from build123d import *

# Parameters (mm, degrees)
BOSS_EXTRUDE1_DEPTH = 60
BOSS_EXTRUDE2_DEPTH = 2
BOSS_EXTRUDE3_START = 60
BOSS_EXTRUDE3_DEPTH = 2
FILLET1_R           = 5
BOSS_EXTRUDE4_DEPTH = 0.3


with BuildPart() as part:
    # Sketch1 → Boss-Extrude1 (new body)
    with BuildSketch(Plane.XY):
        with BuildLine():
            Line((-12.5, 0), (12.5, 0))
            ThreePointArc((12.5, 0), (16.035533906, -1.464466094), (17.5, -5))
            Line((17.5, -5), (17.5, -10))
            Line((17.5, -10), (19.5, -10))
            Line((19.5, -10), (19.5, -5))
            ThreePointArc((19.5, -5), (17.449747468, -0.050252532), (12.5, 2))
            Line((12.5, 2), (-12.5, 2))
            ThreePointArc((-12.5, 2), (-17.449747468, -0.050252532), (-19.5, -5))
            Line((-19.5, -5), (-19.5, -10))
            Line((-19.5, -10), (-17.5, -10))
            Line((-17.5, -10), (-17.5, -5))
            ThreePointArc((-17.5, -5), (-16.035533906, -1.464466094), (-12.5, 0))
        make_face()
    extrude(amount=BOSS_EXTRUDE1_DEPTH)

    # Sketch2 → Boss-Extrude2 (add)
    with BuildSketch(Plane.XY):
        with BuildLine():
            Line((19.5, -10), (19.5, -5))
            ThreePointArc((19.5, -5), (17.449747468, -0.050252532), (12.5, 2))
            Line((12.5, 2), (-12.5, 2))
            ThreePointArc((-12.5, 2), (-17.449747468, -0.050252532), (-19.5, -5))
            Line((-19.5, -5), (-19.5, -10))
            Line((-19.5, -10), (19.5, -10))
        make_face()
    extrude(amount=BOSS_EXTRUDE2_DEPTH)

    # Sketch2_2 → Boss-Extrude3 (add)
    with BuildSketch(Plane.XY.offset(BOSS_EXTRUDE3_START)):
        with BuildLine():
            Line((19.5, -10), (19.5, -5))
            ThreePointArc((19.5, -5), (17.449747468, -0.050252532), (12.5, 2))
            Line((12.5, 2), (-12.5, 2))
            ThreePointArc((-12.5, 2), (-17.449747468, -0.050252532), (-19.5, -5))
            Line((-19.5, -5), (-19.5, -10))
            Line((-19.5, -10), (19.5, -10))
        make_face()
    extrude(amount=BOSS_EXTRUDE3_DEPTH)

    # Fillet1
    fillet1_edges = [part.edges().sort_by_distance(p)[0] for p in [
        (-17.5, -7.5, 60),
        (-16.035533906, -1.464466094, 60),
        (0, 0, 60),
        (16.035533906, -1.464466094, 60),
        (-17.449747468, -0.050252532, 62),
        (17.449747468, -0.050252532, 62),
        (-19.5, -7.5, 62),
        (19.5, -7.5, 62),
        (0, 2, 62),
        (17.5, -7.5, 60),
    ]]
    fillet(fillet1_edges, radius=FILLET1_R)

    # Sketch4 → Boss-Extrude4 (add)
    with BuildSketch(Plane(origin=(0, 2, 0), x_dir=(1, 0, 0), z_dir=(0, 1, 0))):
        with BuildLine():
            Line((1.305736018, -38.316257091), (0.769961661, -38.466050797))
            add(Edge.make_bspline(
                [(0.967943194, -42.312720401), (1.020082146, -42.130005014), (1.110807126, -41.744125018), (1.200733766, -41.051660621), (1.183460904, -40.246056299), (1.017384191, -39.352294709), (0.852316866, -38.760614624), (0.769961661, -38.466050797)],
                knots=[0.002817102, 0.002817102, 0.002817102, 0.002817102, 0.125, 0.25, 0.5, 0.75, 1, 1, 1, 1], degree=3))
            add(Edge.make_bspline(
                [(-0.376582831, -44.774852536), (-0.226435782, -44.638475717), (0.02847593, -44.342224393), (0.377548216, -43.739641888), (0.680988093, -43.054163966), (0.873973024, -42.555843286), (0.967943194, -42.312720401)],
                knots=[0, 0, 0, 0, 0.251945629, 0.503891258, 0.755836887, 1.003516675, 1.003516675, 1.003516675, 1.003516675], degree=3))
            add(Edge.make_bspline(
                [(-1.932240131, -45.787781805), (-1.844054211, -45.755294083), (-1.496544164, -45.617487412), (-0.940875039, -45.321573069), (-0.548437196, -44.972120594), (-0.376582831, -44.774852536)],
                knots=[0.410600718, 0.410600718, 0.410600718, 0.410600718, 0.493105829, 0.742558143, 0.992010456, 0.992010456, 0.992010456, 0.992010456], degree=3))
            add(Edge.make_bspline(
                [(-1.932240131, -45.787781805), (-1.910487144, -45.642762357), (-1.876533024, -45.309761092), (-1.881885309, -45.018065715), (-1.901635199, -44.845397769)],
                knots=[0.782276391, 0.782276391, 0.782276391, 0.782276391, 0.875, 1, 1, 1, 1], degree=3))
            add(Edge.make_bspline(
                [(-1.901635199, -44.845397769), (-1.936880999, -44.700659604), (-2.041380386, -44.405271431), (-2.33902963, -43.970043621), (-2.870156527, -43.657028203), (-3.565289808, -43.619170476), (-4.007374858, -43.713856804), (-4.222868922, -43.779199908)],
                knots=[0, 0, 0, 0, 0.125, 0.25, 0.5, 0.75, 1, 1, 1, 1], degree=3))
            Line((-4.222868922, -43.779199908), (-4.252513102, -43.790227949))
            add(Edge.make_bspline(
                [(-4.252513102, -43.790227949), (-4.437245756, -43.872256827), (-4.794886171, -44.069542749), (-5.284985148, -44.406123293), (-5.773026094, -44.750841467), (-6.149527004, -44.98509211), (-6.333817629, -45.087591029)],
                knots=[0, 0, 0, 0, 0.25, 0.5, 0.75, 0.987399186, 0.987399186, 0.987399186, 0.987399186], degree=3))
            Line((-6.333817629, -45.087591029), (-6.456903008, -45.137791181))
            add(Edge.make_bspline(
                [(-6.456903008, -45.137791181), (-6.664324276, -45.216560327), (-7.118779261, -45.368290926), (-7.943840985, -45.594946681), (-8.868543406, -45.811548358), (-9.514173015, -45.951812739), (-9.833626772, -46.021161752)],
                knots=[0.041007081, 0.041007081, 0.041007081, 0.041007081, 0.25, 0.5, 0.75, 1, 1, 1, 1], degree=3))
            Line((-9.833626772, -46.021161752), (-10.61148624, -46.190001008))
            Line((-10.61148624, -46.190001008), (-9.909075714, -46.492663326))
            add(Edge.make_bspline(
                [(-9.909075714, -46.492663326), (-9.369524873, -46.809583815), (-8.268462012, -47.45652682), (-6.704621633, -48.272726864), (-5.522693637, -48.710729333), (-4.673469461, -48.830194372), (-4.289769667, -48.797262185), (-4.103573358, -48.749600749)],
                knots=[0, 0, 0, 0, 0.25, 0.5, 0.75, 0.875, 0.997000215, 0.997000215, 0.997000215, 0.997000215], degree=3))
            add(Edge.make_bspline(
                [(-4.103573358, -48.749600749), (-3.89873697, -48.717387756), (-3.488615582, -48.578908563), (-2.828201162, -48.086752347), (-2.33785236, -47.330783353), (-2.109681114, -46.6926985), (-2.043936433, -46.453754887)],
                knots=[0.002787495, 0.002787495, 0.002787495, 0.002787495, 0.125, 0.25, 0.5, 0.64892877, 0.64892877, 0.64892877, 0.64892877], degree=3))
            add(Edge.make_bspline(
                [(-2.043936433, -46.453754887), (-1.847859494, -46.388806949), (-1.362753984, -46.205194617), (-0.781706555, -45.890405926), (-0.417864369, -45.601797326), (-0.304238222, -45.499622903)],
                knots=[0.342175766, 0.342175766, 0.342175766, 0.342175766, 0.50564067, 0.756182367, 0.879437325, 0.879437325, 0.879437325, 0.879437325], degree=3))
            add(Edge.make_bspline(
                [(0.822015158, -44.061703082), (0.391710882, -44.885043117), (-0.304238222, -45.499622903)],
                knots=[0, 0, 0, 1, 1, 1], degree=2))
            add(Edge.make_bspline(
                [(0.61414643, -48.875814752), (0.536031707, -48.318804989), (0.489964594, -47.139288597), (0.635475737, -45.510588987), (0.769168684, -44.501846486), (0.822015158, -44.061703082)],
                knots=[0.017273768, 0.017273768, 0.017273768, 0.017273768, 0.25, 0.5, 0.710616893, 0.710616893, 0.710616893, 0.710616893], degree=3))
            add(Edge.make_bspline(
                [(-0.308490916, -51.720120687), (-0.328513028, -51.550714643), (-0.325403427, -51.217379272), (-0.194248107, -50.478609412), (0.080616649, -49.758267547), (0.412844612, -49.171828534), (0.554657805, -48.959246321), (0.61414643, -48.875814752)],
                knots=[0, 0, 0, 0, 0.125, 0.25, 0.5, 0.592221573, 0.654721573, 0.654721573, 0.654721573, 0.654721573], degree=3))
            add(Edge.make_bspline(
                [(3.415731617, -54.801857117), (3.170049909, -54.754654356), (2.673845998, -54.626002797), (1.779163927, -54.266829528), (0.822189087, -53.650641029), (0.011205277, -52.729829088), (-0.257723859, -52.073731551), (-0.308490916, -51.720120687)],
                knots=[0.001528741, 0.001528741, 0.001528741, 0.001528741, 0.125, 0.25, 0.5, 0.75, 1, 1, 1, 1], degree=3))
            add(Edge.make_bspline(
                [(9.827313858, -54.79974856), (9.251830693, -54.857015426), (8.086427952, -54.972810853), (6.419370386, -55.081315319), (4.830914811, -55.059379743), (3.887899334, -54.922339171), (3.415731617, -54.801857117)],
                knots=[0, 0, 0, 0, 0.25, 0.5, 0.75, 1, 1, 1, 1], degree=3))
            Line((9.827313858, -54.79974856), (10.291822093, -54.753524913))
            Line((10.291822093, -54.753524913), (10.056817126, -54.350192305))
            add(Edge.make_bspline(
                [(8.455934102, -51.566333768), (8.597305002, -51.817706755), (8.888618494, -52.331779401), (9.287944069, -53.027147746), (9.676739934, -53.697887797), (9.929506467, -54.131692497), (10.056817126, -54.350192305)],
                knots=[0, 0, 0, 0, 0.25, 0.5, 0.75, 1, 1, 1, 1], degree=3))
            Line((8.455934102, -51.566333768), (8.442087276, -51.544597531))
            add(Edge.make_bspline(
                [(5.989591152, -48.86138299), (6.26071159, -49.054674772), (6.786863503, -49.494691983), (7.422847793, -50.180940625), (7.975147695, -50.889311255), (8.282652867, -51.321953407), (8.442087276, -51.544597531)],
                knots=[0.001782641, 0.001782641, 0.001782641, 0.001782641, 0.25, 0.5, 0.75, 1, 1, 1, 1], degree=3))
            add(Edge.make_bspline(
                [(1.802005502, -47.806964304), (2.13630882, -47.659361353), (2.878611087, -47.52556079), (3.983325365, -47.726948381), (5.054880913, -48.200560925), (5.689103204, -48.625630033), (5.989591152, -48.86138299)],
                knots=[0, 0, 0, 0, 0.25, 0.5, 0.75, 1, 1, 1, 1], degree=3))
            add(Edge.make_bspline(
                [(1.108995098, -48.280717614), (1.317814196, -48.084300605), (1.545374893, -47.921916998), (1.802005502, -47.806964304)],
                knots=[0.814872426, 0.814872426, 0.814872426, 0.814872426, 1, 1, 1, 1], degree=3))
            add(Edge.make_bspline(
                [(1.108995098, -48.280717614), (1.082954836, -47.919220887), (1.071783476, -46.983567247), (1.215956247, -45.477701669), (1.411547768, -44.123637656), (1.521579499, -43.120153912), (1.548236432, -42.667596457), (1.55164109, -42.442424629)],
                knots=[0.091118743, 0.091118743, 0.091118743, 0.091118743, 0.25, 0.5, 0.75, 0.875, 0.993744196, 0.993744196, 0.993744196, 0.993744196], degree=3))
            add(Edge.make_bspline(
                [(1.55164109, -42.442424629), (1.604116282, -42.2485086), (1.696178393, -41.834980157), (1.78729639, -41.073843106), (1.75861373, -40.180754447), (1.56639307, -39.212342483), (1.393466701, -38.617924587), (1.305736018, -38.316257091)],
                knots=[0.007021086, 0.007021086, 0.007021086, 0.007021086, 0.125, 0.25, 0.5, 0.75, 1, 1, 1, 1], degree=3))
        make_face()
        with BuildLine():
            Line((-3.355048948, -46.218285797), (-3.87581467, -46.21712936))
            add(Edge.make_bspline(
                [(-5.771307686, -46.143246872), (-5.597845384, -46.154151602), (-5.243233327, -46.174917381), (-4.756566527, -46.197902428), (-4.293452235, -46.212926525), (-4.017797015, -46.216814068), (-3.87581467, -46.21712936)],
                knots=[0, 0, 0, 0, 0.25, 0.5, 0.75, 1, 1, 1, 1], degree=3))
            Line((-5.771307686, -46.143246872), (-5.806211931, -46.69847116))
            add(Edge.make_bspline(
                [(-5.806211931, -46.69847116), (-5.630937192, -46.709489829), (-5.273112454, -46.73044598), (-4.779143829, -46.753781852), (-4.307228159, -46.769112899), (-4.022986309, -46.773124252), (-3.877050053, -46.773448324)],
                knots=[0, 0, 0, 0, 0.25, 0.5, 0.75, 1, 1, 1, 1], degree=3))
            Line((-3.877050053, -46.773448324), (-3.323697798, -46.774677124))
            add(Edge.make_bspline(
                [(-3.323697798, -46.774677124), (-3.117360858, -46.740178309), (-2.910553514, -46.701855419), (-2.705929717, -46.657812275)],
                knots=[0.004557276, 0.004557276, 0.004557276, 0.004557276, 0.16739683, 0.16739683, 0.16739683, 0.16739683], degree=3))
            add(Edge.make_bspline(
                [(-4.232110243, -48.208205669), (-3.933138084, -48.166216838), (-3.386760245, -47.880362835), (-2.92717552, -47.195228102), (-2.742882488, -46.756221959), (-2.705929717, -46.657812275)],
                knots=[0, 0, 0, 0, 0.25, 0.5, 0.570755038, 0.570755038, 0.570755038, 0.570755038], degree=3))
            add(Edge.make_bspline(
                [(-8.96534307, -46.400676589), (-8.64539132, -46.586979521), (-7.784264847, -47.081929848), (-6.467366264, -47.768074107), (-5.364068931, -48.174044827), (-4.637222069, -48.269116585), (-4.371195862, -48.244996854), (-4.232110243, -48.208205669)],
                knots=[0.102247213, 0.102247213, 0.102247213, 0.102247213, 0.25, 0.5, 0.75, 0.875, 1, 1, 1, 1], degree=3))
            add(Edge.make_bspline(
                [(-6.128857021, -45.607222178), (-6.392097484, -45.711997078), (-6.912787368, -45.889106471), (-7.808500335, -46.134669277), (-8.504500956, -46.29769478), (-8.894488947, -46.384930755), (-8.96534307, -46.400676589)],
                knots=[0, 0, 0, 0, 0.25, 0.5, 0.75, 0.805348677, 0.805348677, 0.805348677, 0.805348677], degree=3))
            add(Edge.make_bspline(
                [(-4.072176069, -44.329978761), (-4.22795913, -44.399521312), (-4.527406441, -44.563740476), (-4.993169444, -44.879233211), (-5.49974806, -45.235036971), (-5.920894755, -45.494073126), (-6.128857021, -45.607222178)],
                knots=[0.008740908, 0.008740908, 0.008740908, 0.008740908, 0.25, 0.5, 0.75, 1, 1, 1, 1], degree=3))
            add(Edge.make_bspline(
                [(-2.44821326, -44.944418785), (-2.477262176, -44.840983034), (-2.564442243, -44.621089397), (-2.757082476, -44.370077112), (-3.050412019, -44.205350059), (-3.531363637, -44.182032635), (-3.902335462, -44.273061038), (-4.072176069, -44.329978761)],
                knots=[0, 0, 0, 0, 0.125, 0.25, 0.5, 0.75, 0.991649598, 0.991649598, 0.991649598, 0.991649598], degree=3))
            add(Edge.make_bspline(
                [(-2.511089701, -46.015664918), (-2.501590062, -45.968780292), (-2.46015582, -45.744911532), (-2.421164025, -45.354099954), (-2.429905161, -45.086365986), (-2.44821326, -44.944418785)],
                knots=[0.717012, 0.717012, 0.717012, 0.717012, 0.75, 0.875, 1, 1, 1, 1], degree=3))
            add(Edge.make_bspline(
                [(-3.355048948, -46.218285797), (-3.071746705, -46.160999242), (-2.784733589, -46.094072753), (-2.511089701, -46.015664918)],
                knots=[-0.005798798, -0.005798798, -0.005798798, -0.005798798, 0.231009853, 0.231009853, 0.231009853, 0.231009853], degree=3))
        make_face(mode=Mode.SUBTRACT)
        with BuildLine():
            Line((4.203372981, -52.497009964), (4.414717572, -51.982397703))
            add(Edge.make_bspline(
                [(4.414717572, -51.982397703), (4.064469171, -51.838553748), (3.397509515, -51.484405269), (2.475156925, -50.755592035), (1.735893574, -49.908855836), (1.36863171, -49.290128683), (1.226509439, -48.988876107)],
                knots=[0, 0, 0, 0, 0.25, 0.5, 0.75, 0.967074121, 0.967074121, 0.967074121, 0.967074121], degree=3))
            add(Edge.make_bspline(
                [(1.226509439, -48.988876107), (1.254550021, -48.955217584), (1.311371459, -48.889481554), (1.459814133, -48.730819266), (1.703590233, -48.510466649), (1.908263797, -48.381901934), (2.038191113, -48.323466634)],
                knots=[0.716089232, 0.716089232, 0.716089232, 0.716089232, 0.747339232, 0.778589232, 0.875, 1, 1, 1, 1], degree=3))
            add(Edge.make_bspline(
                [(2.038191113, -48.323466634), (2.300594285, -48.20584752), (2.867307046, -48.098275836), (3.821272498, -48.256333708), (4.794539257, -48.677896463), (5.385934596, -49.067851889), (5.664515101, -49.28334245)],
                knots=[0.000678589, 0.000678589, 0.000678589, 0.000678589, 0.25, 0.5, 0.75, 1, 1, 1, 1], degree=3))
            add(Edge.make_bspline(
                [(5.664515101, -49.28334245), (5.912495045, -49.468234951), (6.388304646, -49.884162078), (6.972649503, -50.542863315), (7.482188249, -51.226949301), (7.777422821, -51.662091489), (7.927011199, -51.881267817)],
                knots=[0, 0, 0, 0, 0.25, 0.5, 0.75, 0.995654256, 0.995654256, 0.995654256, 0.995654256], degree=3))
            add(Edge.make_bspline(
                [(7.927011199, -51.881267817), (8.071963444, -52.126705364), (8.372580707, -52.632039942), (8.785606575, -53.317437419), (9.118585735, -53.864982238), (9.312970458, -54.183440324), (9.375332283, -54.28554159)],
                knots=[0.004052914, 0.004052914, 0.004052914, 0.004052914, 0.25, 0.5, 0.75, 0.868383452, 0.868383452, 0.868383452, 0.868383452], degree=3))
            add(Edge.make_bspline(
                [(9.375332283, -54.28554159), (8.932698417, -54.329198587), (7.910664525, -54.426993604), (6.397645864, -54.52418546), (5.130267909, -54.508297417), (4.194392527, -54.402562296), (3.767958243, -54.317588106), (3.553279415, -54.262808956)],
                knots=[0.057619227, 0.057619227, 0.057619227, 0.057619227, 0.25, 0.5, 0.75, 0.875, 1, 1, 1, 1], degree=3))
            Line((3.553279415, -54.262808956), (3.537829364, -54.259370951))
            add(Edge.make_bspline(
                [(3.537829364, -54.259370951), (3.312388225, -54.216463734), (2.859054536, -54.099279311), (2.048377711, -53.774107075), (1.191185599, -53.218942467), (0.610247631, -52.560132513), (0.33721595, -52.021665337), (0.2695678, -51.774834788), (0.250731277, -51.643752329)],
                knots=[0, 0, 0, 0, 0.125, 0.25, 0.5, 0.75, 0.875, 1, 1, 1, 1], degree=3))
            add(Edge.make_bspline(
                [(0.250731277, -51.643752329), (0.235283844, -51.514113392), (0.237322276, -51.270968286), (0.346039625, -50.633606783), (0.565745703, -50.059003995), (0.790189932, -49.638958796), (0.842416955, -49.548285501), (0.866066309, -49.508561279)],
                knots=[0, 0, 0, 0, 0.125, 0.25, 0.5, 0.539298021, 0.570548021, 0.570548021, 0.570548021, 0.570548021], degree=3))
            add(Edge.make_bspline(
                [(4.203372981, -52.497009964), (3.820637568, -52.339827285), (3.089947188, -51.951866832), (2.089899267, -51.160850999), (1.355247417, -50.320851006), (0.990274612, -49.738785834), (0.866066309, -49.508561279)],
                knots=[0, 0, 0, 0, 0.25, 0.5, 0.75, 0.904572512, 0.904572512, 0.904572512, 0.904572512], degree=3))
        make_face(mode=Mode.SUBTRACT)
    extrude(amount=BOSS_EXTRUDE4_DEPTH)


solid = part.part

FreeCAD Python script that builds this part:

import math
import FreeCAD as App
import Part
import Sketcher

V = App.Vector


def edges_at(feature, points):
    """Names of the edges that pass closest to the given points."""
    edges = feature.Shape.Edges
    near = lambda p: min(range(len(edges)), key=lambda i: edges[i].distToShape(Part.Vertex(*p))[0])
    return sorted({f"Edge{near(p) + 1}" for p in points})

doc = App.newDocument("Part")
body = doc.addObject("PartDesign::Body", "Body")

sketch1 = body.newObject("Sketcher::SketchObject", "Sketch")
sketch1.AttachmentSupport = (doc.getObject("XY_Plane"), [""])
sketch1.MapMode = "FlatFace"
sketch1.addGeometry([
    Part.LineSegment(V(-12.5, 0, 0), V(12.5, 0, 0)),
    Part.ArcOfCircle(Part.Circle(V(12.5, -5, 0), V(0, 0, 1), 5), math.radians(0), math.radians(90)),
    Part.LineSegment(V(17.5, -5, 0), V(17.5, -10, 0)),
    Part.LineSegment(V(17.5, -10, 0), V(19.5, -10, 0)),
    Part.LineSegment(V(19.5, -10, 0), V(19.5, -5, 0)),
    Part.ArcOfCircle(Part.Circle(V(12.5, -5, 0), V(0, 0, 1), 7), math.radians(0), math.radians(90)),
    Part.LineSegment(V(12.5, 2, 0), V(-12.5, 2, 0)),
    Part.ArcOfCircle(Part.Circle(V(-12.5, -5, 0), V(0, 0, 1), 7), math.radians(90), math.radians(180)),
    Part.LineSegment(V(-19.5, -5, 0), V(-19.5, -10, 0)),
    Part.LineSegment(V(-19.5, -10, 0), V(-17.5, -10, 0)),
    Part.LineSegment(V(-17.5, -10, 0), V(-17.5, -5, 0)),
    Part.ArcOfCircle(Part.Circle(V(-12.5, -5, 0), V(0, 0, 1), 5), math.radians(90), math.radians(180)),
], False)
sketch1.addConstraint([
    Sketcher.Constraint("Tangent", 0, 2, 1, 2),
    Sketcher.Constraint("Tangent", 1, 1, 2, 1),
    Sketcher.Constraint("Coincident", 2, 2, 3, 1),
    Sketcher.Constraint("Coincident", 3, 2, 4, 1),
    Sketcher.Constraint("Tangent", 4, 2, 5, 1),
    Sketcher.Constraint("Tangent", 5, 2, 6, 1),
    Sketcher.Constraint("Tangent", 6, 2, 7, 1),
    Sketcher.Constraint("Tangent", 7, 2, 8, 1),
    Sketcher.Constraint("Coincident", 8, 2, 9, 1),
    Sketcher.Constraint("Coincident", 9, 2, 10, 1),
    Sketcher.Constraint("Tangent", 10, 2, 11, 2),
    Sketcher.Constraint("Tangent", 11, 1, 0, 1),
    Sketcher.Constraint("Horizontal", 0),
    Sketcher.Constraint("Vertical", 2),
    Sketcher.Constraint("Horizontal", 3),
    Sketcher.Constraint("Vertical", 4),
    Sketcher.Constraint("Horizontal", 6),
    Sketcher.Constraint("Vertical", 8),
    Sketcher.Constraint("Horizontal", 9),
    Sketcher.Constraint("Vertical", 10),
    Sketcher.Constraint("Coincident", 5, 3, 1, 3),
    Sketcher.Constraint("Coincident", 11, 3, 7, 3),
    Sketcher.Constraint("Equal", 5, 7),
    Sketcher.Constraint("Symmetric", 0, 2, 11, 1, -1, 1),
    Sketcher.Constraint("Horizontal", 3, 2, 8, 2),
    Sketcher.Constraint("Radius", 1, 5.0),
    Sketcher.Constraint("Radius", 5, 7.0),
    Sketcher.Constraint("DistanceX", 0, 1, 0, 2, 25.0),
    Sketcher.Constraint("DistanceY", 2, 2, 2, 1, 5.0),
])
pad1 = body.newObject("PartDesign::Pad", "Pad")
pad1.Profile = sketch1
pad1.Length = 60

sketch2 = body.newObject("Sketcher::SketchObject", "Sketch001")
sketch2.AttachmentSupport = (doc.getObject("XY_Plane"), [""])
sketch2.MapMode = "FlatFace"
sketch2.addGeometry([
    Part.LineSegment(V(19.5, -10, 0), V(19.5, -5, 0)),
    Part.ArcOfCircle(Part.Circle(V(12.5, -5, 0), V(0, 0, 1), 7), math.radians(0), math.radians(90)),
    Part.LineSegment(V(12.5, 2, 0), V(-12.5, 2, 0)),
    Part.ArcOfCircle(Part.Circle(V(-12.5, -5, 0), V(0, 0, 1), 7), math.radians(90), math.radians(180)),
    Part.LineSegment(V(-19.5, -5, 0), V(-19.5, -10, 0)),
    Part.LineSegment(V(-19.5, -10, 0), V(19.5, -10, 0)),
], False)
sketch2.addConstraint([
    Sketcher.Constraint("Tangent", 0, 2, 1, 1),
    Sketcher.Constraint("Tangent", 1, 2, 2, 1),
    Sketcher.Constraint("Tangent", 2, 2, 3, 1),
    Sketcher.Constraint("Tangent", 3, 2, 4, 1),
    Sketcher.Constraint("Coincident", 4, 2, 5, 1),
    Sketcher.Constraint("Coincident", 5, 2, 0, 1),
    Sketcher.Constraint("Vertical", 0),
    Sketcher.Constraint("Horizontal", 2),
    Sketcher.Constraint("Vertical", 4),
    Sketcher.Constraint("Horizontal", 5),
    Sketcher.Constraint("Equal", 1, 3),
    Sketcher.Constraint("Radius", 1, 7.0),
    Sketcher.Constraint("DistanceX", 2, 2, 2, 1, 25.0),
    Sketcher.Constraint("DistanceY", 0, 1, 0, 2, 5.0),
    Sketcher.Constraint("DistanceY", 1, 3, -1, 1, 5.0),
    Sketcher.Constraint("DistanceX", -1, 1, 1, 3, 12.5),
])
pad2 = body.newObject("PartDesign::Pad", "Pad001")
pad2.Profile = sketch2
pad2.Length = 2

sketch3 = body.newObject("Sketcher::SketchObject", "Sketch002")
sketch3.AttachmentSupport = (doc.getObject("XY_Plane"), [""])
sketch3.MapMode = "FlatFace"
sketch3.AttachmentOffset = App.Placement(V(0, 0, 60), App.Rotation())
sketch3.addGeometry([
    Part.LineSegment(V(19.5, -10, 0), V(19.5, -5, 0)),
    Part.ArcOfCircle(Part.Circle(V(12.5, -5, 0), V(0, 0, 1), 7), math.radians(0), math.radians(90)),
    Part.LineSegment(V(12.5, 2, 0), V(-12.5, 2, 0)),
    Part.ArcOfCircle(Part.Circle(V(-12.5, -5, 0), V(0, 0, 1), 7), math.radians(90), math.radians(180)),
    Part.LineSegment(V(-19.5, -5, 0), V(-19.5, -10, 0)),
    Part.LineSegment(V(-19.5, -10, 0), V(19.5, -10, 0)),
], False)
sketch3.addConstraint([
    Sketcher.Constraint("Tangent", 0, 2, 1, 1),
    Sketcher.Constraint("Tangent", 1, 2, 2, 1),
    Sketcher.Constraint("Tangent", 2, 2, 3, 1),
    Sketcher.Constraint("Tangent", 3, 2, 4, 1),
    Sketcher.Constraint("Coincident", 4, 2, 5, 1),
    Sketcher.Constraint("Coincident", 5, 2, 0, 1),
    Sketcher.Constraint("Vertical", 0),
    Sketcher.Constraint("Horizontal", 2),
    Sketcher.Constraint("Vertical", 4),
    Sketcher.Constraint("Horizontal", 5),
    Sketcher.Constraint("Equal", 1, 3),
    Sketcher.Constraint("Radius", 1, 7.0),
    Sketcher.Constraint("DistanceX", 2, 2, 2, 1, 25.0),
    Sketcher.Constraint("DistanceY", 0, 1, 0, 2, 5.0),
    Sketcher.Constraint("DistanceY", 1, 3, -1, 1, 5.0),
    Sketcher.Constraint("DistanceX", -1, 1, 1, 3, 12.5),
])
pad3 = body.newObject("PartDesign::Pad", "Pad002")
pad3.Profile = sketch3
pad3.Length = 2
doc.recompute()

fillet = body.newObject("PartDesign::Fillet", "Fillet")
fillet.Base = (pad3, edges_at(pad3, [
    (-17.5, -7.5, 60),
    (-16.036, -1.464, 60),
    (0, 0, 60),
    (16.036, -1.464, 60),
    (-17.45, -0.05, 62),
    (17.45, -0.05, 62),
    (-19.5, -7.5, 62),
    (19.5, -7.5, 62),
    (0, 2, 62),
    (17.5, -7.5, 60),
]))
fillet.Radius = 5

sketch4 = body.newObject("Sketcher::SketchObject", "Sketch003")
sketch4.AttachmentSupport = (doc.getObject("XZ_Plane"), [""])
sketch4.MapMode = "FlatFace"
sketch4.AttachmentOffset = App.Placement(V(0, 0, -2), App.Rotation())
sketch4.addGeometry([
    Part.LineSegment(V(1.305736, 38.316257, 0), V(0.769962, 38.466051, 0)),
    Part.BSplineCurve([V(0.967943, 42.31272, 0), V(1.020082, 42.130005, 0), V(1.110807, 41.744125, 0), V(1.200734, 41.051661, 0), V(1.183461, 40.246056, 0), V(1.017384, 39.352295, 0), V(0.852317, 38.760615, 0), V(0.769962, 38.466051, 0)], [4, 1, 1, 1, 1, 4], [0.002817102, 0.125, 0.25, 0.5, 0.75, 1], False, 3, [1, 1, 1, 1, 1, 1, 1, 1], False),
    Part.BSplineCurve([V(-0.376583, 44.774853, 0), V(-0.226436, 44.638476, 0), V(0.028476, 44.342224, 0), V(0.377548, 43.739642, 0), V(0.680988, 43.054164, 0), V(0.873973, 42.555843, 0), V(0.967943, 42.31272, 0)], [4, 1, 1, 1, 4], [0, 0.251945629, 0.503891258, 0.755836887, 1.003516675], False, 3, [1, 1, 1, 1, 1, 1, 1], False),
    Part.BSplineCurve([V(-1.93224, 45.787782, 0), V(-1.844054, 45.755294, 0), V(-1.496544, 45.617487, 0), V(-0.940875, 45.321573, 0), V(-0.548437, 44.972121, 0), V(-0.376583, 44.774853, 0)], [4, 1, 1, 4], [0.410600718, 0.493105829, 0.742558143, 0.992010456], False, 3, [1, 1, 1, 1, 1, 1], False),
    Part.BSplineCurve([V(-1.93224, 45.787782, 0), V(-1.910487, 45.642762, 0), V(-1.876533, 45.309761, 0), V(-1.881885, 45.018066, 0), V(-1.901635, 44.845398, 0)], [4, 1, 4], [0.782276391, 0.875, 1], False, 3, [1, 1, 1, 1, 1], False),
    Part.BSplineCurve([V(-1.901635, 44.845398, 0), V(-1.936881, 44.70066, 0), V(-2.04138, 44.405271, 0), V(-2.33903, 43.970044, 0), V(-2.870157, 43.657028, 0), V(-3.56529, 43.61917, 0), V(-4.007375, 43.713857, 0), V(-4.222869, 43.7792, 0)], [4, 1, 1, 1, 1, 4], [0, 0.125, 0.25, 0.5, 0.75, 1], False, 3, [1, 1, 1, 1, 1, 1, 1, 1], False),
    Part.LineSegment(V(-4.222869, 43.7792, 0), V(-4.252513, 43.790228, 0)),
    Part.BSplineCurve([V(-4.252513, 43.790228, 0), V(-4.437246, 43.872257, 0), V(-4.794886, 44.069543, 0), V(-5.284985, 44.406123, 0), V(-5.773026, 44.750841, 0), V(-6.149527, 44.985092, 0), V(-6.333818, 45.087591, 0)], [4, 1, 1, 1, 4], [0, 0.25, 0.5, 0.75, 0.987399186], False, 3, [1, 1, 1, 1, 1, 1, 1], False),
    Part.LineSegment(V(-6.333818, 45.087591, 0), V(-6.456903, 45.137791, 0)),
    Part.BSplineCurve([V(-6.456903, 45.137791, 0), V(-6.664324, 45.21656, 0), V(-7.118779, 45.368291, 0), V(-7.943841, 45.594947, 0), V(-8.868543, 45.811548, 0), V(-9.514173, 45.951813, 0), V(-9.833627, 46.021162, 0)], [4, 1, 1, 1, 4], [0.041007081, 0.25, 0.5, 0.75, 1], False, 3, [1, 1, 1, 1, 1, 1, 1], False),
    Part.LineSegment(V(-9.833627, 46.021162, 0), V(-10.611486, 46.190001, 0)),
    Part.LineSegment(V(-10.611486, 46.190001, 0), V(-9.909076, 46.492663, 0)),
    Part.BSplineCurve([V(-9.909076, 46.492663, 0), V(-9.369525, 46.809584, 0), V(-8.268462, 47.456527, 0), V(-6.704622, 48.272727, 0), V(-5.522694, 48.710729, 0), V(-4.673469, 48.830194, 0), V(-4.28977, 48.797262, 0), V(-4.103573, 48.749601, 0)], [4, 1, 1, 1, 1, 4], [0, 0.25, 0.5, 0.75, 0.875, 0.997000215], False, 3, [1, 1, 1, 1, 1, 1, 1, 1], False),
    Part.BSplineCurve([V(-4.103573, 48.749601, 0), V(-3.898737, 48.717388, 0), V(-3.488616, 48.578909, 0), V(-2.828201, 48.086752, 0), V(-2.337852, 47.330783, 0), V(-2.109681, 46.692698, 0), V(-2.043936, 46.453755, 0)], [4, 1, 1, 1, 4], [0.002787495, 0.125, 0.25, 0.5, 0.64892877], False, 3, [1, 1, 1, 1, 1, 1, 1], False),
    Part.BSplineCurve([V(-2.043936, 46.453755, 0), V(-1.847859, 46.388807, 0), V(-1.362754, 46.205195, 0), V(-0.781707, 45.890406, 0), V(-0.417864, 45.601797, 0), V(-0.304238, 45.499623, 0)], [4, 1, 1, 4], [0.342175766, 0.50564067, 0.756182367, 0.879437325], False, 3, [1, 1, 1, 1, 1, 1], False),
    Part.BSplineCurve([V(0.822015, 44.061703, 0), V(0.391711, 44.885043, 0), V(-0.304238, 45.499623, 0)], [3, 3], [0, 1], False, 2, [1, 1, 1], False),
    Part.BSplineCurve([V(0.614146, 48.875815, 0), V(0.536032, 48.318805, 0), V(0.489965, 47.139289, 0), V(0.635476, 45.510589, 0), V(0.769169, 44.501846, 0), V(0.822015, 44.061703, 0)], [4, 1, 1, 4], [0.017273768, 0.25, 0.5, 0.710616893], False, 3, [1, 1, 1, 1, 1, 1], False),
    Part.BSplineCurve([V(-0.308491, 51.720121, 0), V(-0.328513, 51.550715, 0), V(-0.325403, 51.217379, 0), V(-0.194248, 50.478609, 0), V(0.080617, 49.758268, 0), V(0.412845, 49.171829, 0), V(0.554658, 48.959246, 0), V(0.614146, 48.875815, 0)], [4, 1, 1, 1, 1, 4], [0, 0.125, 0.25, 0.5, 0.592221573, 0.654721573], False, 3, [1, 1, 1, 1, 1, 1, 1, 1], False),
    Part.BSplineCurve([V(3.415732, 54.801857, 0), V(3.17005, 54.754654, 0), V(2.673846, 54.626003, 0), V(1.779164, 54.26683, 0), V(0.822189, 53.650641, 0), V(0.011205, 52.729829, 0), V(-0.257724, 52.073732, 0), V(-0.308491, 51.720121, 0)], [4, 1, 1, 1, 1, 4], [0.001528741, 0.125, 0.25, 0.5, 0.75, 1], False, 3, [1, 1, 1, 1, 1, 1, 1, 1], False),
    Part.BSplineCurve([V(9.827314, 54.799749, 0), V(9.251831, 54.857015, 0), V(8.086428, 54.972811, 0), V(6.41937, 55.081315, 0), V(4.830915, 55.05938, 0), V(3.887899, 54.922339, 0), V(3.415732, 54.801857, 0)], [4, 1, 1, 1, 4], [0, 0.25, 0.5, 0.75, 1], False, 3, [1, 1, 1, 1, 1, 1, 1], False),
    Part.LineSegment(V(9.827314, 54.799749, 0), V(10.291822, 54.753525, 0)),
    Part.LineSegment(V(10.291822, 54.753525, 0), V(10.056817, 54.350192, 0)),
    Part.BSplineCurve([V(8.455934, 51.566334, 0), V(8.597305, 51.817707, 0), V(8.888618, 52.331779, 0), V(9.287944, 53.027148, 0), V(9.67674, 53.697888, 0), V(9.929506, 54.131692, 0), V(10.056817, 54.350192, 0)], [4, 1, 1, 1, 4], [0, 0.25, 0.5, 0.75, 1], False, 3, [1, 1, 1, 1, 1, 1, 1], False),
    Part.LineSegment(V(8.455934, 51.566334, 0), V(8.442087, 51.544598, 0)),
    Part.BSplineCurve([V(5.989591, 48.861383, 0), V(6.260712, 49.054675, 0), V(6.786864, 49.494692, 0), V(7.422848, 50.180941, 0), V(7.975148, 50.889311, 0), V(8.282653, 51.321953, 0), V(8.442087, 51.544598, 0)], [4, 1, 1, 1, 4], [0.001782641, 0.25, 0.5, 0.75, 1], False, 3, [1, 1, 1, 1, 1, 1, 1], False),
    Part.BSplineCurve([V(1.802006, 47.806964, 0), V(2.136309, 47.659361, 0), V(2.878611, 47.525561, 0), V(3.983325, 47.726948, 0), V(5.054881, 48.200561, 0), V(5.689103, 48.62563, 0), V(5.989591, 48.861383, 0)], [4, 1, 1, 1, 4], [0, 0.25, 0.5, 0.75, 1], False, 3, [1, 1, 1, 1, 1, 1, 1], False),
    Part.BSplineCurve([V(1.108995, 48.280718, 0), V(1.317814, 48.084301, 0), V(1.545375, 47.921917, 0), V(1.802006, 47.806964, 0)], [4, 4], [0.814872426, 1], False, 3, [1, 1, 1, 1], False),
    Part.BSplineCurve([V(1.108995, 48.280718, 0), V(1.082955, 47.919221, 0), V(1.071783, 46.983567, 0), V(1.215956, 45.477702, 0), V(1.411548, 44.123638, 0), V(1.521579, 43.120154, 0), V(1.548236, 42.667596, 0), V(1.551641, 42.442425, 0)], [4, 1, 1, 1, 1, 4], [0.091118743, 0.25, 0.5, 0.75, 0.875, 0.993744196], False, 3, [1, 1, 1, 1, 1, 1, 1, 1], False),
    Part.BSplineCurve([V(1.551641, 42.442425, 0), V(1.604116, 42.248509, 0), V(1.696178, 41.83498, 0), V(1.787296, 41.073843, 0), V(1.758614, 40.180754, 0), V(1.566393, 39.212342, 0), V(1.393467, 38.617925, 0), V(1.305736, 38.316257, 0)], [4, 1, 1, 1, 1, 4], [0.007021086, 0.125, 0.25, 0.5, 0.75, 1], False, 3, [1, 1, 1, 1, 1, 1, 1, 1], False),
    Part.BSplineCurve([V(4.203373, 52.49701, 0), V(3.820638, 52.339827, 0), V(3.089947, 51.951867, 0), V(2.089899, 51.160851, 0), V(1.355247, 50.320851, 0), V(0.990275, 49.738786, 0), V(0.866066, 49.508561, 0)], [4, 1, 1, 1, 4], [0, 0.25, 0.5, 0.75, 0.904572512], False, 3, [1, 1, 1, 1, 1, 1, 1], False),
    Part.LineSegment(V(4.203373, 52.49701, 0), V(4.414718, 51.982398, 0)),
    Part.BSplineCurve([V(4.414718, 51.982398, 0), V(4.064469, 51.838554, 0), V(3.39751, 51.484405, 0), V(2.475157, 50.755592, 0), V(1.735894, 49.908856, 0), V(1.368632, 49.290129, 0), V(1.226509, 48.988876, 0)], [4, 1, 1, 1, 4], [0, 0.25, 0.5, 0.75, 0.967074121], False, 3, [1, 1, 1, 1, 1, 1, 1], False),
    Part.BSplineCurve([V(1.226509, 48.988876, 0), V(1.25455, 48.955218, 0), V(1.311371, 48.889482, 0), V(1.459814, 48.730819, 0), V(1.70359, 48.510467, 0), V(1.908264, 48.381902, 0), V(2.038191, 48.323467, 0)], [4, 1, 1, 1, 4], [0.716089232, 0.747339232, 0.778589232, 0.875, 1], False, 3, [1, 1, 1, 1, 1, 1, 1], False),
    Part.BSplineCurve([V(2.038191, 48.323467, 0), V(2.300594, 48.205848, 0), V(2.867307, 48.098276, 0), V(3.821272, 48.256334, 0), V(4.794539, 48.677896, 0), V(5.385935, 49.067852, 0), V(5.664515, 49.283342, 0)], [4, 1, 1, 1, 4], [0.000678589, 0.25, 0.5, 0.75, 1], False, 3, [1, 1, 1, 1, 1, 1, 1], False),
    Part.BSplineCurve([V(5.664515, 49.283342, 0), V(5.912495, 49.468235, 0), V(6.388305, 49.884162, 0), V(6.97265, 50.542863, 0), V(7.482188, 51.226949, 0), V(7.777423, 51.662091, 0), V(7.927011, 51.881268, 0)], [4, 1, 1, 1, 4], [0, 0.25, 0.5, 0.75, 0.995654256], False, 3, [1, 1, 1, 1, 1, 1, 1], False),
    Part.BSplineCurve([V(7.927011, 51.881268, 0), V(8.071963, 52.126705, 0), V(8.372581, 52.63204, 0), V(8.785607, 53.317437, 0), V(9.118586, 53.864982, 0), V(9.31297, 54.18344, 0), V(9.375332, 54.285542, 0)], [4, 1, 1, 1, 4], [0.004052914, 0.25, 0.5, 0.75, 0.868383452], False, 3, [1, 1, 1, 1, 1, 1, 1], False),
    Part.BSplineCurve([V(9.375332, 54.285542, 0), V(8.932698, 54.329199, 0), V(7.910665, 54.426994, 0), V(6.397646, 54.524185, 0), V(5.130268, 54.508297, 0), V(4.194393, 54.402562, 0), V(3.767958, 54.317588, 0), V(3.553279, 54.262809, 0)], [4, 1, 1, 1, 1, 4], [0.057619227, 0.25, 0.5, 0.75, 0.875, 1], False, 3, [1, 1, 1, 1, 1, 1, 1, 1], False),
    Part.LineSegment(V(3.553279, 54.262809, 0), V(3.537829, 54.259371, 0)),
    Part.BSplineCurve([V(3.537829, 54.259371, 0), V(3.312388, 54.216464, 0), V(2.859055, 54.099279, 0), V(2.048378, 53.774107, 0), V(1.191186, 53.218942, 0), V(0.610248, 52.560133, 0), V(0.337216, 52.021665, 0), V(0.269568, 51.774835, 0), V(0.250731, 51.643752, 0)], [4, 1, 1, 1, 1, 1, 4], [0, 0.125, 0.25, 0.5, 0.75, 0.875, 1], False, 3, [1, 1, 1, 1, 1, 1, 1, 1, 1], False),
    Part.BSplineCurve([V(0.250731, 51.643752, 0), V(0.235284, 51.514113, 0), V(0.237322, 51.270968, 0), V(0.34604, 50.633607, 0), V(0.565746, 50.059004, 0), V(0.79019, 49.638959, 0), V(0.842417, 49.548286, 0), V(0.866066, 49.508561, 0)], [4, 1, 1, 1, 1, 4], [0, 0.125, 0.25, 0.5, 0.539298021, 0.570548021], False, 3, [1, 1, 1, 1, 1, 1, 1, 1], False),
    Part.BSplineCurve([V(-3.355049, 46.218286, 0), V(-3.071747, 46.160999, 0), V(-2.784734, 46.094073, 0), V(-2.51109, 46.015665, 0)], [4, 4], [-0.005798798, 0.231009853], False, 3, [1, 1, 1, 1], False),
    Part.LineSegment(V(-3.355049, 46.218286, 0), V(-3.875815, 46.217129, 0)),
    Part.BSplineCurve([V(-5.771308, 46.143247, 0), V(-5.597845, 46.154152, 0), V(-5.243233, 46.174917, 0), V(-4.756567, 46.197902, 0), V(-4.293452, 46.212927, 0), V(-4.017797, 46.216814, 0), V(-3.875815, 46.217129, 0)], [4, 1, 1, 1, 4], [0, 0.25, 0.5, 0.75, 1], False, 3, [1, 1, 1, 1, 1, 1, 1], False),
    Part.LineSegment(V(-5.771308, 46.143247, 0), V(-5.806212, 46.698471, 0)),
    Part.BSplineCurve([V(-5.806212, 46.698471, 0), V(-5.630937, 46.70949, 0), V(-5.273112, 46.730446, 0), V(-4.779144, 46.753782, 0), V(-4.307228, 46.769113, 0), V(-4.022986, 46.773124, 0), V(-3.87705, 46.773448, 0)], [4, 1, 1, 1, 4], [0, 0.25, 0.5, 0.75, 1], False, 3, [1, 1, 1, 1, 1, 1, 1], False),
    Part.LineSegment(V(-3.87705, 46.773448, 0), V(-3.323698, 46.774677, 0)),
    Part.BSplineCurve([V(-3.323698, 46.774677, 0), V(-3.117361, 46.740178, 0), V(-2.910554, 46.701855, 0), V(-2.70593, 46.657812, 0)], [4, 4], [0.004557276, 0.16739683], False, 3, [1, 1, 1, 1], False),
    Part.BSplineCurve([V(-4.23211, 48.208206, 0), V(-3.933138, 48.166217, 0), V(-3.38676, 47.880363, 0), V(-2.927176, 47.195228, 0), V(-2.742882, 46.756222, 0), V(-2.70593, 46.657812, 0)], [4, 1, 1, 4], [0, 0.25, 0.5, 0.570755038], False, 3, [1, 1, 1, 1, 1, 1], False),
    Part.BSplineCurve([V(-8.965343, 46.400677, 0), V(-8.645391, 46.58698, 0), V(-7.784265, 47.08193, 0), V(-6.467366, 47.768074, 0), V(-5.364069, 48.174045, 0), V(-4.637222, 48.269117, 0), V(-4.371196, 48.244997, 0), V(-4.23211, 48.208206, 0)], [4, 1, 1, 1, 1, 4], [0.102247213, 0.25, 0.5, 0.75, 0.875, 1], False, 3, [1, 1, 1, 1, 1, 1, 1, 1], False),
    Part.BSplineCurve([V(-6.128857, 45.607222, 0), V(-6.392097, 45.711997, 0), V(-6.912787, 45.889106, 0), V(-7.8085, 46.134669, 0), V(-8.504501, 46.297695, 0), V(-8.894489, 46.384931, 0), V(-8.965343, 46.400677, 0)], [4, 1, 1, 1, 4], [0, 0.25, 0.5, 0.75, 0.805348677], False, 3, [1, 1, 1, 1, 1, 1, 1], False),
    Part.BSplineCurve([V(-4.072176, 44.329979, 0), V(-4.227959, 44.399521, 0), V(-4.527406, 44.56374, 0), V(-4.993169, 44.879233, 0), V(-5.499748, 45.235037, 0), V(-5.920895, 45.494073, 0), V(-6.128857, 45.607222, 0)], [4, 1, 1, 1, 4], [0.008740908, 0.25, 0.5, 0.75, 1], False, 3, [1, 1, 1, 1, 1, 1, 1], False),
    Part.BSplineCurve([V(-2.448213, 44.944419, 0), V(-2.477262, 44.840983, 0), V(-2.564442, 44.621089, 0), V(-2.757082, 44.370077, 0), V(-3.050412, 44.20535, 0), V(-3.531364, 44.182033, 0), V(-3.902335, 44.273061, 0), V(-4.072176, 44.329979, 0)], [4, 1, 1, 1, 1, 4], [0, 0.125, 0.25, 0.5, 0.75, 0.991649598], False, 3, [1, 1, 1, 1, 1, 1, 1, 1], False),
    Part.BSplineCurve([V(-2.51109, 46.015665, 0), V(-2.50159, 45.96878, 0), V(-2.460156, 45.744912, 0), V(-2.421164, 45.3541, 0), V(-2.429905, 45.086366, 0), V(-2.448213, 44.944419, 0)], [4, 1, 1, 4], [0.717012, 0.75, 0.875, 1], False, 3, [1, 1, 1, 1, 1, 1], False),
], False)
sketch4.addConstraint([
    Sketcher.Constraint("Block", 1),
    Sketcher.Constraint("Block", 2),
    Sketcher.Constraint("Block", 3),
    Sketcher.Constraint("Block", 4),
    Sketcher.Constraint("Block", 5),
    Sketcher.Constraint("Block", 7),
    Sketcher.Constraint("Block", 9),
    Sketcher.Constraint("Block", 12),
    Sketcher.Constraint("Block", 13),
    Sketcher.Constraint("Block", 14),
    Sketcher.Constraint("Block", 15),
    Sketcher.Constraint("Block", 16),
    Sketcher.Constraint("Block", 17),
    Sketcher.Constraint("Block", 18),
    Sketcher.Constraint("Block", 19),
    Sketcher.Constraint("Block", 22),
    Sketcher.Constraint("Block", 24),
    Sketcher.Constraint("Block", 25),
    Sketcher.Constraint("Block", 26),
    Sketcher.Constraint("Block", 27),
    Sketcher.Constraint("Block", 28),
    Sketcher.Constraint("Block", 29),
    Sketcher.Constraint("Block", 31),
    Sketcher.Constraint("Block", 32),
    Sketcher.Constraint("Block", 33),
    Sketcher.Constraint("Block", 34),
    Sketcher.Constraint("Block", 35),
    Sketcher.Constraint("Block", 36),
    Sketcher.Constraint("Block", 38),
    Sketcher.Constraint("Block", 39),
    Sketcher.Constraint("Block", 40),
    Sketcher.Constraint("Block", 42),
    Sketcher.Constraint("Block", 44),
    Sketcher.Constraint("Block", 46),
    Sketcher.Constraint("Block", 47),
    Sketcher.Constraint("Block", 48),
    Sketcher.Constraint("Block", 49),
    Sketcher.Constraint("Block", 50),
    Sketcher.Constraint("Block", 51),
    Sketcher.Constraint("Block", 52),
    Sketcher.Constraint("Coincident", 0, 2, 1, 2),
    Sketcher.Constraint("Coincident", 5, 2, 6, 1),
    Sketcher.Constraint("Coincident", 6, 2, 7, 1),
    Sketcher.Constraint("Coincident", 7, 2, 8, 1),
    Sketcher.Constraint("Coincident", 8, 2, 9, 1),
    Sketcher.Constraint("Coincident", 9, 2, 10, 1),
    Sketcher.Constraint("Coincident", 10, 2, 11, 1),
    Sketcher.Constraint("Coincident", 11, 2, 12, 1),
    Sketcher.Constraint("Coincident", 19, 1, 20, 1),
    Sketcher.Constraint("Coincident", 20, 2, 21, 1),
    Sketcher.Constraint("Coincident", 21, 2, 22, 2),
    Sketcher.Constraint("Coincident", 22, 1, 23, 1),
    Sketcher.Constraint("Coincident", 23, 2, 24, 2),
    Sketcher.Constraint("Coincident", 28, 2, 0, 1),
    Sketcher.Constraint("Coincident", 29, 1, 30, 1),
    Sketcher.Constraint("Coincident", 30, 2, 31, 1),
    Sketcher.Constraint("Coincident", 36, 2, 37, 1),
    Sketcher.Constraint("Coincident", 37, 2, 38, 1),
    Sketcher.Constraint("Coincident", 40, 1, 41, 1),
    Sketcher.Constraint("Coincident", 41, 2, 42, 2),
    Sketcher.Constraint("Coincident", 42, 1, 43, 1),
    Sketcher.Constraint("Coincident", 43, 2, 44, 1),
    Sketcher.Constraint("Coincident", 44, 2, 45, 1),
    Sketcher.Constraint("Coincident", 45, 2, 46, 1),
    Sketcher.Constraint("DistanceY", -1, 1, 10, 2, 46.190001),
    Sketcher.Constraint("DistanceX", 10, 2, 11, 2, 0.702411),
    Sketcher.Constraint("DistanceX", 0, 2, 20, 2, 9.52186),
    Sketcher.Constraint("DistanceY", 11, 2, 20, 2, 8.260862),
])
pad4 = body.newObject("PartDesign::Pad", "Pad003")
pad4.Profile = sketch4
pad4.Length = 0.3
pad4.Reversed = True

doc.recompute()
